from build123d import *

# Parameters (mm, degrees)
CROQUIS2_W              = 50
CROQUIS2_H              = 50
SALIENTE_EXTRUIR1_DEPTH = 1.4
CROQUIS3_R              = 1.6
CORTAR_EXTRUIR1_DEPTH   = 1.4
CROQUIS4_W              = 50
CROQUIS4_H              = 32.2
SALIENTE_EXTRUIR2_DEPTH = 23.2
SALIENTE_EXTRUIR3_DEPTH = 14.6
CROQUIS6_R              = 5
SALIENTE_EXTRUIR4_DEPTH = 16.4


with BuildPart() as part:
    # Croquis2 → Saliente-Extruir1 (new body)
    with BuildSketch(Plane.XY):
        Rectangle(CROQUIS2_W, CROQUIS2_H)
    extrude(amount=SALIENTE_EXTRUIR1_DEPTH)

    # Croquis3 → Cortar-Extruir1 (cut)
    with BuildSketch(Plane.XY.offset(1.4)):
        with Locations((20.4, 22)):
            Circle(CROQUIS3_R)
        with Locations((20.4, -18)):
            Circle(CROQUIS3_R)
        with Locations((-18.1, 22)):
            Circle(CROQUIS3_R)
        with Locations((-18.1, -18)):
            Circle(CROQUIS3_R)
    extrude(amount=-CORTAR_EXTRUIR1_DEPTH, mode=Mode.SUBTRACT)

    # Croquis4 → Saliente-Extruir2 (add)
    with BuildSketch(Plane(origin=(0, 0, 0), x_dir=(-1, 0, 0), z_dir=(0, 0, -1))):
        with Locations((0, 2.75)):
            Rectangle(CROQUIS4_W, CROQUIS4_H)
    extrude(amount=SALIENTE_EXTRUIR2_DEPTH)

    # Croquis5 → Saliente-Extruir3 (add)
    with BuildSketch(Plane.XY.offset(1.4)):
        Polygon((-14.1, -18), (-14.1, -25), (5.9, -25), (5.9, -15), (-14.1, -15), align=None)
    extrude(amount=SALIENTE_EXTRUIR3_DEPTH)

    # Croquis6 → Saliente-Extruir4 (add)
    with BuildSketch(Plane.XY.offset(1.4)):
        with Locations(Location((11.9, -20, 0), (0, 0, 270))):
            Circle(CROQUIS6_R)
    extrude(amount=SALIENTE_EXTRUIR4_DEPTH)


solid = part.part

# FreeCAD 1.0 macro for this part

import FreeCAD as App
import Part
import Sketcher

V = App.Vector
Q = App.Units.Quantity

doc = App.newDocument("Part")
body = doc.addObject("PartDesign::Body", "Body")

sketch1 = body.newObject("Sketcher::SketchObject", "Sketch")
sketch1.AttachmentSupport = (doc.getObject("XY_Plane"), [""])
sketch1.MapMode = "FlatFace"
sketch1.addGeometry([
    Part.LineSegment(V(-25, 25, 0), V(-25, -25, 0)),
    Part.LineSegment(V(-25, -25, 0), V(25, -25, 0)),
    Part.LineSegment(V(25, -25, 0), V(25, 25, 0)),
    Part.LineSegment(V(25, 25, 0), V(-25, 25, 0)),
], False)
sketch1.addConstraint([
    Sketcher.Constraint("Coincident", 0, 2, 1, 1),
    Sketcher.Constraint("Coincident", 1, 2, 2, 1),
    Sketcher.Constraint("Coincident", 2, 2, 3, 1),
    Sketcher.Constraint("Coincident", 3, 2, 0, 1),
    Sketcher.Constraint("Vertical", 0),
    Sketcher.Constraint("Horizontal", 1),
    Sketcher.Constraint("Vertical", 2),
    Sketcher.Constraint("Horizontal", 3),
    Sketcher.Constraint("Symmetric", 0, 2, 2, 2, -1, 1),
    Sketcher.Constraint("Equal", 3, 0),
    Sketcher.Constraint("DistanceX", 1, 1, 1, 2, Q("50 mm")),
])
pad1 = body.newObject("PartDesign::Pad", "Pad")
pad1.Profile = sketch1
pad1.Length = 1.4

sketch2 = body.newObject("Sketcher::SketchObject", "Sketch001")
sketch2.AttachmentSupport = (doc.getObject("XY_Plane"), [""])
sketch2.MapMode = "FlatFace"
sketch2.AttachmentOffset = App.Placement(V(0, 0, 1.4), App.Rotation())
sketch2.addGeometry([
    Part.Circle(V(20.4, 22, 0), V(0, 0, 1), 1.6),
    Part.Circle(V(20.4, -18, 0), V(0, 0, 1), 1.6),
    Part.Circle(V(-18.1, 22, 0), V(0, 0, 1), 1.6),
    Part.Circle(V(-18.1, -18, 0), V(0, 0, 1), 1.6),
], False)
sketch2.addConstraint([
    Sketcher.Constraint("Equal", 0, 1),
    Sketcher.Constraint("Equal", 1, 2),
    Sketcher.Constraint("Equal", 2, 3),
    Sketcher.Constraint("Horizontal", 0, 3, 2, 3),
    Sketcher.Constraint("Horizontal", 1, 3, 3, 3),
    Sketcher.Constraint("Vertical", 0, 3, 1, 3),
    Sketcher.Constraint("Vertical", 2, 3, 3, 3),
    Sketcher.Constraint("Diameter", 0, Q("3.2 mm")),
    Sketcher.Constraint("DistanceY", -1, 1, 0, 3, Q("22 mm")),
    Sketcher.Constraint("DistanceY", 1, 3, -1, 1, Q("18 mm")),
    Sketcher.Constraint("DistanceX", -1, 1, 0, 3, Q("20.4 mm")),
    Sketcher.Constraint("DistanceX", 2, 3, -1, 1, Q("18.1 mm")),
])
pocket1 = body.newObject("PartDesign::Pocket", "Pocket")
pocket1.Profile = sketch2
pocket1.Length = 1.4

sketch3 = body.newObject("Sketcher::SketchObject", "Sketch002")
sketch3.AttachmentSupport = (doc.getObject("XY_Plane"), [""])
sketch3.MapMode = "FlatFace"
sketch3.addGeometry([
    Part.LineSegment(V(25, 18.85, 0), V(25, -13.35, 0)),
    Part.LineSegment(V(25, -13.35, 0), V(-25, -13.35, 0)),
    Part.LineSegment(V(-25, -13.35, 0), V(-25, 18.85, 0)),
    Part.LineSegment(V(-25, 18.85, 0), V(25, 18.85, 0)),
], False)
sketch3.addConstraint([
    Sketcher.Constraint("Coincident", 0, 2, 1, 1),
    Sketcher.Constraint("Coincident", 1, 2, 2, 1),
    Sketcher.Constraint("Coincident", 2, 2, 3, 1),
    Sketcher.Constraint("Coincident", 3, 2, 0, 1),
    Sketcher.Constraint("Vertical", 0),
    Sketcher.Constraint("Horizontal", 1),
    Sketcher.Constraint("Vertical", 2),
    Sketcher.Constraint("Horizontal", 3),
    Sketcher.Constraint("DistanceX", 1, 2, 1, 1, Q("50 mm")),
    Sketcher.Constraint("DistanceY", 0, 2, 0, 1, Q("32.2 mm")),
    Sketcher.Constraint("DistanceX", -1, 1, 0, 2, Q("25 mm")),
    Sketcher.Constraint("DistanceY", 0, 2, -1, 1, Q("13.35 mm")),
])
pad2 = body.newObject("PartDesign::Pad", "Pad001")
pad2.Profile = sketch3
pad2.Length = 23.2
pad2.Reversed = True

sketch4 = body.newObject("Sketcher::SketchObject", "Sketch003")
sketch4.AttachmentSupport = (doc.getObject("XY_Plane"), [""])
sketch4.MapMode = "FlatFace"
sketch4.AttachmentOffset = App.Placement(V(0, 0, 1.4), App.Rotation())
sketch4.addGeometry([
    Part.LineSegment(V(-14.1, -25, 0), V(5.9, -25, 0)),
    Part.LineSegment(V(5.9, -25, 0), V(5.9, -15, 0)),
    Part.LineSegment(V(5.9, -15, 0), V(-14.1, -15, 0)),
    Part.LineSegment(V(-14.1, -15, 0), V(-14.1, -25, 0)),
], False)
sketch4.addConstraint([
    Sketcher.Constraint("Coincident", 0, 2, 1, 1),
    Sketcher.Constraint("Coincident", 1, 2, 2, 1),
    Sketcher.Constraint("Coincident", 2, 2, 3, 1),
    Sketcher.Constraint("Coincident", 3, 2, 0, 1),
    Sketcher.Constraint("Horizontal", 0),
    Sketcher.Constraint("Vertical", 1),
    Sketcher.Constraint("Horizontal", 2),
    Sketcher.Constraint("Vertical", 3),
    Sketcher.Constraint("DistanceX", 0, 1, 0, 2, Q("20 mm")),
    Sketcher.Constraint("DistanceY", 1, 1, 1, 2, Q("10 mm")),
    Sketcher.Constraint("DistanceY", 0, 2, -1, 1, Q("25 mm")),
    Sketcher.Constraint("DistanceX", -1, 1, 0, 2, Q("5.9 mm")),
])
pad3 = body.newObject("PartDesign::Pad", "Pad002")
pad3.Profile = sketch4
pad3.Length = 14.6

sketch5 = body.newObject("Sketcher::SketchObject", "Sketch004")
sketch5.AttachmentSupport = (doc.getObject("XY_Plane"), [""])
sketch5.MapMode = "FlatFace"
sketch5.AttachmentOffset = App.Placement(V(0, 0, 1.4), App.Rotation())
sketch5.addGeometry(Part.Circle(V(11.9, -20, 0), V(0, 0, 1), 5), False)
sketch5.addConstraint([
    Sketcher.Constraint("Diameter", 0, Q("10 mm")),
    Sketcher.Constraint("DistanceY", 0, 3, -1, 1, Q("20 mm")),
    Sketcher.Constraint("DistanceX", -1, 1, 0, 3, Q("11.9 mm")),
])
pad4 = body.newObject("PartDesign::Pad", "Pad003")
pad4.Profile = sketch5
pad4.Length = 16.4

doc.recompute()
